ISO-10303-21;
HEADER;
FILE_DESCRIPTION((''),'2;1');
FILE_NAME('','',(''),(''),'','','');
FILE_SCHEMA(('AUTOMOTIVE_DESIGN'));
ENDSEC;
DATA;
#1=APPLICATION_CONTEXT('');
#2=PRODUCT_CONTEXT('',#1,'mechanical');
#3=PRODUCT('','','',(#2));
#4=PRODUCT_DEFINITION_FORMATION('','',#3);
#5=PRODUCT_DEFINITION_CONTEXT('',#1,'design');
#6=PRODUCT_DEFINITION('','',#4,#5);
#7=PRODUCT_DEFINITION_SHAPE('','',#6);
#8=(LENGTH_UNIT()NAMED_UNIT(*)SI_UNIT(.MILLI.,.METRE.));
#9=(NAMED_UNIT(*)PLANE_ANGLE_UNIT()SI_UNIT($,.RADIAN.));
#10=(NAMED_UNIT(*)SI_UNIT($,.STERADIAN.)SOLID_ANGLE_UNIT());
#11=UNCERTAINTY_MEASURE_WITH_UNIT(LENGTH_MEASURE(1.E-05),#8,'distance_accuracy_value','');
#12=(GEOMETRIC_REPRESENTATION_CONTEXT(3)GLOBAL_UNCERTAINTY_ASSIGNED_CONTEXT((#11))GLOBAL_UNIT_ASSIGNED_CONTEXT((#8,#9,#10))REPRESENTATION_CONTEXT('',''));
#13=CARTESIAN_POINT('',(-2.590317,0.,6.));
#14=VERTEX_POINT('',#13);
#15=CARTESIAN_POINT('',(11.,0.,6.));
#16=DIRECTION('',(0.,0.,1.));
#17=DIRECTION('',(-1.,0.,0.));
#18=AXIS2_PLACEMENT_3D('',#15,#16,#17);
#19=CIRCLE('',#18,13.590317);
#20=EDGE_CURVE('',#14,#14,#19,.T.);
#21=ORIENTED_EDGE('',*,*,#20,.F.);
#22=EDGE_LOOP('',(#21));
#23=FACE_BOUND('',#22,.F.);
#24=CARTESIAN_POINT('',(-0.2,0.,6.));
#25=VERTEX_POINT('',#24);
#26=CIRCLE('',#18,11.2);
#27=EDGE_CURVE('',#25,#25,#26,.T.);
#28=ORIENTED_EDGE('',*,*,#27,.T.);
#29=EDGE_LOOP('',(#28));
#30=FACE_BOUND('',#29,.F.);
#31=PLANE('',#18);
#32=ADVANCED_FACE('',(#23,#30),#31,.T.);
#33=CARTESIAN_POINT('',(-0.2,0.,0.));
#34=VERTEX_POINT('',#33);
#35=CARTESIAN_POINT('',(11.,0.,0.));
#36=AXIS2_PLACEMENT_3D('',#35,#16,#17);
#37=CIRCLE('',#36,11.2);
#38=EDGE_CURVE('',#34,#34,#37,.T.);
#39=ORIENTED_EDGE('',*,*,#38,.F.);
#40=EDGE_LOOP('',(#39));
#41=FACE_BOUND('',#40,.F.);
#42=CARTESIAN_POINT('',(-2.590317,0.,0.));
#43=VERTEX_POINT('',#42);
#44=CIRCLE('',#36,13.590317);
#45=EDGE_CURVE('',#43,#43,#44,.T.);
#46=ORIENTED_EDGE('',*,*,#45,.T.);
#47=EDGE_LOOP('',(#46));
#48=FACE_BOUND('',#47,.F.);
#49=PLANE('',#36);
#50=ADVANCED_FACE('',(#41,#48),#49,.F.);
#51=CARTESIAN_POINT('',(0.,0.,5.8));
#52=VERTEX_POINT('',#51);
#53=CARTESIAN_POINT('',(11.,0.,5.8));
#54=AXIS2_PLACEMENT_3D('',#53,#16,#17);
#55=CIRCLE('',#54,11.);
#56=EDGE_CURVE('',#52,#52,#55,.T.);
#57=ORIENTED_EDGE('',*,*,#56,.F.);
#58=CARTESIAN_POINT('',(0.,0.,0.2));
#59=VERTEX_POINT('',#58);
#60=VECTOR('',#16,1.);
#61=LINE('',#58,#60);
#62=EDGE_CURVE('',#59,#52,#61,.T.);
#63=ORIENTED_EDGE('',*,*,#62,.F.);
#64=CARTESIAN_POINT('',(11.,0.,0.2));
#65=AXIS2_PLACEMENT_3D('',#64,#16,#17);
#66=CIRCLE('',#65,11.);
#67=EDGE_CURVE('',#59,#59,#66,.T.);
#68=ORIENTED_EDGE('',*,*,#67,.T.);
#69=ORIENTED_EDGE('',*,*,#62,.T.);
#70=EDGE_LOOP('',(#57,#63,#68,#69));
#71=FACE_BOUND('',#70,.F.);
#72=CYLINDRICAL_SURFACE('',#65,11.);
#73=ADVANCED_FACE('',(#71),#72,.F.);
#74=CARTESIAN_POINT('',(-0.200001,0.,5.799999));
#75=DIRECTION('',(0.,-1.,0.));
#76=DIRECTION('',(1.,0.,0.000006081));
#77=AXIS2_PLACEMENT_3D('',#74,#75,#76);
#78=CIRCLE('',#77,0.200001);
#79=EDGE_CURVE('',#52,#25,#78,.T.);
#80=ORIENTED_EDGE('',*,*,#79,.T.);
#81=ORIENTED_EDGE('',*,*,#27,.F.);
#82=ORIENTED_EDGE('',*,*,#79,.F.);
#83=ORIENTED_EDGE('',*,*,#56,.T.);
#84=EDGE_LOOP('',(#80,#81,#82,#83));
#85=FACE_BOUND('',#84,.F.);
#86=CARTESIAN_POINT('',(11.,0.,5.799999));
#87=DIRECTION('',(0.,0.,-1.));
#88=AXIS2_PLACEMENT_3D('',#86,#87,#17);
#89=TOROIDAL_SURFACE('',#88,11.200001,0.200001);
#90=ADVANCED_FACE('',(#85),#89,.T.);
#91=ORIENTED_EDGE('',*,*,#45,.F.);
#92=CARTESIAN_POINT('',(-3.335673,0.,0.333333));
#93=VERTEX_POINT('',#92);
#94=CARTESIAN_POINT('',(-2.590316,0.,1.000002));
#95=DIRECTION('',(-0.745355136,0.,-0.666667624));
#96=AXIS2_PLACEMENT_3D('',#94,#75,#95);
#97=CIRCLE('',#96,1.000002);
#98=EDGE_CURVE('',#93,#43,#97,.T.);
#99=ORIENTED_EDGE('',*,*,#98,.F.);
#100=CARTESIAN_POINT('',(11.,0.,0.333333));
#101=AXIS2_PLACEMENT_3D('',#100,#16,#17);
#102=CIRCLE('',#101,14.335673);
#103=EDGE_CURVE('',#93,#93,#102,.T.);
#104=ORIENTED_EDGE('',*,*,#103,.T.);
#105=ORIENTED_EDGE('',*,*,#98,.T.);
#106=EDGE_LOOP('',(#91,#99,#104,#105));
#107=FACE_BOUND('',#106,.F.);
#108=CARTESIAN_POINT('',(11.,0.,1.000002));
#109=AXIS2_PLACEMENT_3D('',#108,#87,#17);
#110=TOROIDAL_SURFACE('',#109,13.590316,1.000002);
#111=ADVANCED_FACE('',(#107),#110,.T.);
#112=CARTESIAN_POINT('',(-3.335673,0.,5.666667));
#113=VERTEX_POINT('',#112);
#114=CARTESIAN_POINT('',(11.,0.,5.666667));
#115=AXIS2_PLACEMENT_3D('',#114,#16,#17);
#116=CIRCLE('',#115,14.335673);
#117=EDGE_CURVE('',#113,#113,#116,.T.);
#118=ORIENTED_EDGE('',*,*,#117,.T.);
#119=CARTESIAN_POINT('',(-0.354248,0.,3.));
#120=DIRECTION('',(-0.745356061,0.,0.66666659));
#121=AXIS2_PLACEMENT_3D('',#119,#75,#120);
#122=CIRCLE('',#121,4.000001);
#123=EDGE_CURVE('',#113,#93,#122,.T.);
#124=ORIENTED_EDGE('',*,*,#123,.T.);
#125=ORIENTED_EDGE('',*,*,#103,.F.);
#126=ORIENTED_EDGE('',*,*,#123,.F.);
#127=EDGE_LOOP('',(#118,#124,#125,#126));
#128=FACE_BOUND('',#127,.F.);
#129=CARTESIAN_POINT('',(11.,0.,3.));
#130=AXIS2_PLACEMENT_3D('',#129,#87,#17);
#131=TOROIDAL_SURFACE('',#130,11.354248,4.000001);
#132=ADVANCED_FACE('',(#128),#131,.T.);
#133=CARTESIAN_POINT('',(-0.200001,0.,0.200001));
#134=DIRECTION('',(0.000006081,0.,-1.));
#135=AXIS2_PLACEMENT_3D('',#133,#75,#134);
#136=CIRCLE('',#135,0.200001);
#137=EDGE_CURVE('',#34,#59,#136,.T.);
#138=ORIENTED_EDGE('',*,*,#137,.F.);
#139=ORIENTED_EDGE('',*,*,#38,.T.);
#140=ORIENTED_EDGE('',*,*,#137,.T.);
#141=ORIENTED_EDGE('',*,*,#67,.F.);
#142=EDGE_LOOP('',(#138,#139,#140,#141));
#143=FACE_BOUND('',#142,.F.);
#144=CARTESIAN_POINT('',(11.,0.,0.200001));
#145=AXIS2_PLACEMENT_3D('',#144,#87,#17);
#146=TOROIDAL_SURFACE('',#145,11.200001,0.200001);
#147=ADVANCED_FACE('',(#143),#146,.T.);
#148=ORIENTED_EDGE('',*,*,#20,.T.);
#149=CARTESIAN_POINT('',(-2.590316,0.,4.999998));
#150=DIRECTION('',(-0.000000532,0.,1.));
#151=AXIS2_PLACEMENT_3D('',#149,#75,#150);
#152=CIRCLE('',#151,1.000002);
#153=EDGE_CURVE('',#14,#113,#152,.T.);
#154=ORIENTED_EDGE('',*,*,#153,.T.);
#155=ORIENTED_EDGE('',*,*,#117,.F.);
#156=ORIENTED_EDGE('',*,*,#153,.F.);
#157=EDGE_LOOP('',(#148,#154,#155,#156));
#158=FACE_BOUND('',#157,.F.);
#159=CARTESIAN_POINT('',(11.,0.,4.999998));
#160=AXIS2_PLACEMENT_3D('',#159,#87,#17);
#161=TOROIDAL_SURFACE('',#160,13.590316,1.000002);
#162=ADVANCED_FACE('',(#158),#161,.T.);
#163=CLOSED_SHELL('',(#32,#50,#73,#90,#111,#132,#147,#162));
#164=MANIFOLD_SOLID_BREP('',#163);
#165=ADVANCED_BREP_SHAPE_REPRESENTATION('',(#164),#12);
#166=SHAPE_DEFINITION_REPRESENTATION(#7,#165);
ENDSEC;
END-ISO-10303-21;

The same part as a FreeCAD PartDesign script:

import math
import FreeCAD as App
import Part
import Sketcher
from FreeCAD import Vector

doc = App.newDocument("Part")
params = doc.addObject("Spreadsheet::Sheet", "Params")
for row, (alias, value) in enumerate([
    ("sketch1_radius", "1.000002 mm"),
    ("sketch1_radius2", "4.000001 mm"),
    ("sketch1_radius3", "0.200001 mm"),
    ("sketch1_height", "6 mm"),
    ("sketch1_height2", "5.6 mm"),
    ("revolution_angle", "360 deg"),
], start=1):
    params.set(f"A{row}", alias)
    params.set(f"B{row}", "=" + value)
    params.setAlias(f"B{row}", alias)

body = doc.addObject("PartDesign::Body", "Body")

sketch1 = body.newObject("Sketcher::SketchObject", "Sketch")
sketch1.AttachmentSupport = (doc.getObject("XZ_Plane"), [""])
sketch1.MapMode = "FlatFace"
sketch1.addGeometry([
    Part.ArcOfCircle(Part.Circle(Vector(-0.2, 0.2, 0), Vector(0, 0, 1), 0.2), math.radians(-90), math.radians(0)),
    Part.LineSegment(Vector(0, 0.2, 0), Vector(0, 5.8, 0)),
    Part.ArcOfCircle(Part.Circle(Vector(-0.2, 5.8, 0), Vector(0, 0, 1), 0.2), math.radians(0), math.radians(90)),
    Part.LineSegment(Vector(-0.2, 6, 0), Vector(-2.59, 6, 0)),
    Part.ArcOfCircle(Part.Circle(Vector(-2.59, 5, 0), Vector(0, 0, 1), 1), math.radians(90), math.radians(138)),
    Part.ArcOfCircle(Part.Circle(Vector(-0.35, 3, 0), Vector(0, 0, 1), 4), math.radians(138), math.radians(222)),
    Part.ArcOfCircle(Part.Circle(Vector(-2.59, 1, 0), Vector(0, 0, 1), 1), math.radians(-138), math.radians(-90)),
    Part.LineSegment(Vector(-2.59, 0, 0), Vector(-0.2, 0, 0)),
], False)
sketch1.addGeometry(Part.LineSegment(Vector(11, 0, 0), Vector(11, 6, 0)), True)
sketch1.addConstraint([
    Sketcher.Constraint("Coincident", 0, 2, 1, 1),
    Sketcher.Constraint("Coincident", 1, 2, 2, 1),
    Sketcher.Constraint("Coincident", 2, 2, 3, 1),
    Sketcher.Constraint("Tangent", 3, 2, 4, 1),
    Sketcher.Constraint("Tangent", 4, 2, 5, 1),
    Sketcher.Constraint("Tangent", 5, 2, 6, 1),
    Sketcher.Constraint("Tangent", 6, 2, 7, 1),
    Sketcher.Constraint("Coincident", 7, 2, 0, 1),
    Sketcher.Constraint("Vertical", 1),
    Sketcher.Constraint("Horizontal", 3),
    Sketcher.Constraint("Horizontal", 7),
    Sketcher.Constraint("Vertical", 8),
    Sketcher.Constraint("Equal", 0, 2),
    Sketcher.Constraint("Equal", 4, 6),
    Sketcher.Constraint("PointOnObject", 0, 2, -2),
    Sketcher.Constraint("PointOnObject", 6, 2, -1),
    Sketcher.Constraint("PointOnObject", 8, 1, -1),
    Sketcher.Constraint("Horizontal", 2, 3, 1, 2),
    Sketcher.Constraint("Horizontal", 3, 2, 8, 2),
    Sketcher.Constraint("Vertical", 4, 3, 6, 3),
    Sketcher.Constraint("Vertical", 0, 3, 2, 2),
    Sketcher.Constraint("Vertical", 2, 2, 7, 2),
    Sketcher.Constraint("Radius", 4, 1.000002),
    Sketcher.Constraint("Radius", 5, 4.000001),
    Sketcher.Constraint("Radius", 0, 0.200001),
    Sketcher.Constraint("DistanceY", 8, 1, 8, 2, 6.0),
    Sketcher.Constraint("DistanceY", 1, 1, 1, 2, 5.6),
    Sketcher.Constraint("DistanceX", -1, 1, 8, 1, 11.0),
    Sketcher.Constraint("DistanceX", 3, 2, 3, 1, 2.390317),
])
sketch1.setExpression("Constraints[22]", "Params.sketch1_radius")
sketch1.setExpression("Constraints[23]", "Params.sketch1_radius2")
sketch1.setExpression("Constraints[24]", "Params.sketch1_radius3")
sketch1.setExpression("Constraints[25]", "Params.sketch1_height")
sketch1.setExpression("Constraints[26]", "Params.sketch1_height2")
revolution = body.newObject("PartDesign::Revolution", "Revolution")
revolution.Profile = sketch1
revolution.ReferenceAxis = (sketch1, ["Axis0"])
revolution.setExpression("Angle", "Params.revolution_angle")

doc.recompute()
